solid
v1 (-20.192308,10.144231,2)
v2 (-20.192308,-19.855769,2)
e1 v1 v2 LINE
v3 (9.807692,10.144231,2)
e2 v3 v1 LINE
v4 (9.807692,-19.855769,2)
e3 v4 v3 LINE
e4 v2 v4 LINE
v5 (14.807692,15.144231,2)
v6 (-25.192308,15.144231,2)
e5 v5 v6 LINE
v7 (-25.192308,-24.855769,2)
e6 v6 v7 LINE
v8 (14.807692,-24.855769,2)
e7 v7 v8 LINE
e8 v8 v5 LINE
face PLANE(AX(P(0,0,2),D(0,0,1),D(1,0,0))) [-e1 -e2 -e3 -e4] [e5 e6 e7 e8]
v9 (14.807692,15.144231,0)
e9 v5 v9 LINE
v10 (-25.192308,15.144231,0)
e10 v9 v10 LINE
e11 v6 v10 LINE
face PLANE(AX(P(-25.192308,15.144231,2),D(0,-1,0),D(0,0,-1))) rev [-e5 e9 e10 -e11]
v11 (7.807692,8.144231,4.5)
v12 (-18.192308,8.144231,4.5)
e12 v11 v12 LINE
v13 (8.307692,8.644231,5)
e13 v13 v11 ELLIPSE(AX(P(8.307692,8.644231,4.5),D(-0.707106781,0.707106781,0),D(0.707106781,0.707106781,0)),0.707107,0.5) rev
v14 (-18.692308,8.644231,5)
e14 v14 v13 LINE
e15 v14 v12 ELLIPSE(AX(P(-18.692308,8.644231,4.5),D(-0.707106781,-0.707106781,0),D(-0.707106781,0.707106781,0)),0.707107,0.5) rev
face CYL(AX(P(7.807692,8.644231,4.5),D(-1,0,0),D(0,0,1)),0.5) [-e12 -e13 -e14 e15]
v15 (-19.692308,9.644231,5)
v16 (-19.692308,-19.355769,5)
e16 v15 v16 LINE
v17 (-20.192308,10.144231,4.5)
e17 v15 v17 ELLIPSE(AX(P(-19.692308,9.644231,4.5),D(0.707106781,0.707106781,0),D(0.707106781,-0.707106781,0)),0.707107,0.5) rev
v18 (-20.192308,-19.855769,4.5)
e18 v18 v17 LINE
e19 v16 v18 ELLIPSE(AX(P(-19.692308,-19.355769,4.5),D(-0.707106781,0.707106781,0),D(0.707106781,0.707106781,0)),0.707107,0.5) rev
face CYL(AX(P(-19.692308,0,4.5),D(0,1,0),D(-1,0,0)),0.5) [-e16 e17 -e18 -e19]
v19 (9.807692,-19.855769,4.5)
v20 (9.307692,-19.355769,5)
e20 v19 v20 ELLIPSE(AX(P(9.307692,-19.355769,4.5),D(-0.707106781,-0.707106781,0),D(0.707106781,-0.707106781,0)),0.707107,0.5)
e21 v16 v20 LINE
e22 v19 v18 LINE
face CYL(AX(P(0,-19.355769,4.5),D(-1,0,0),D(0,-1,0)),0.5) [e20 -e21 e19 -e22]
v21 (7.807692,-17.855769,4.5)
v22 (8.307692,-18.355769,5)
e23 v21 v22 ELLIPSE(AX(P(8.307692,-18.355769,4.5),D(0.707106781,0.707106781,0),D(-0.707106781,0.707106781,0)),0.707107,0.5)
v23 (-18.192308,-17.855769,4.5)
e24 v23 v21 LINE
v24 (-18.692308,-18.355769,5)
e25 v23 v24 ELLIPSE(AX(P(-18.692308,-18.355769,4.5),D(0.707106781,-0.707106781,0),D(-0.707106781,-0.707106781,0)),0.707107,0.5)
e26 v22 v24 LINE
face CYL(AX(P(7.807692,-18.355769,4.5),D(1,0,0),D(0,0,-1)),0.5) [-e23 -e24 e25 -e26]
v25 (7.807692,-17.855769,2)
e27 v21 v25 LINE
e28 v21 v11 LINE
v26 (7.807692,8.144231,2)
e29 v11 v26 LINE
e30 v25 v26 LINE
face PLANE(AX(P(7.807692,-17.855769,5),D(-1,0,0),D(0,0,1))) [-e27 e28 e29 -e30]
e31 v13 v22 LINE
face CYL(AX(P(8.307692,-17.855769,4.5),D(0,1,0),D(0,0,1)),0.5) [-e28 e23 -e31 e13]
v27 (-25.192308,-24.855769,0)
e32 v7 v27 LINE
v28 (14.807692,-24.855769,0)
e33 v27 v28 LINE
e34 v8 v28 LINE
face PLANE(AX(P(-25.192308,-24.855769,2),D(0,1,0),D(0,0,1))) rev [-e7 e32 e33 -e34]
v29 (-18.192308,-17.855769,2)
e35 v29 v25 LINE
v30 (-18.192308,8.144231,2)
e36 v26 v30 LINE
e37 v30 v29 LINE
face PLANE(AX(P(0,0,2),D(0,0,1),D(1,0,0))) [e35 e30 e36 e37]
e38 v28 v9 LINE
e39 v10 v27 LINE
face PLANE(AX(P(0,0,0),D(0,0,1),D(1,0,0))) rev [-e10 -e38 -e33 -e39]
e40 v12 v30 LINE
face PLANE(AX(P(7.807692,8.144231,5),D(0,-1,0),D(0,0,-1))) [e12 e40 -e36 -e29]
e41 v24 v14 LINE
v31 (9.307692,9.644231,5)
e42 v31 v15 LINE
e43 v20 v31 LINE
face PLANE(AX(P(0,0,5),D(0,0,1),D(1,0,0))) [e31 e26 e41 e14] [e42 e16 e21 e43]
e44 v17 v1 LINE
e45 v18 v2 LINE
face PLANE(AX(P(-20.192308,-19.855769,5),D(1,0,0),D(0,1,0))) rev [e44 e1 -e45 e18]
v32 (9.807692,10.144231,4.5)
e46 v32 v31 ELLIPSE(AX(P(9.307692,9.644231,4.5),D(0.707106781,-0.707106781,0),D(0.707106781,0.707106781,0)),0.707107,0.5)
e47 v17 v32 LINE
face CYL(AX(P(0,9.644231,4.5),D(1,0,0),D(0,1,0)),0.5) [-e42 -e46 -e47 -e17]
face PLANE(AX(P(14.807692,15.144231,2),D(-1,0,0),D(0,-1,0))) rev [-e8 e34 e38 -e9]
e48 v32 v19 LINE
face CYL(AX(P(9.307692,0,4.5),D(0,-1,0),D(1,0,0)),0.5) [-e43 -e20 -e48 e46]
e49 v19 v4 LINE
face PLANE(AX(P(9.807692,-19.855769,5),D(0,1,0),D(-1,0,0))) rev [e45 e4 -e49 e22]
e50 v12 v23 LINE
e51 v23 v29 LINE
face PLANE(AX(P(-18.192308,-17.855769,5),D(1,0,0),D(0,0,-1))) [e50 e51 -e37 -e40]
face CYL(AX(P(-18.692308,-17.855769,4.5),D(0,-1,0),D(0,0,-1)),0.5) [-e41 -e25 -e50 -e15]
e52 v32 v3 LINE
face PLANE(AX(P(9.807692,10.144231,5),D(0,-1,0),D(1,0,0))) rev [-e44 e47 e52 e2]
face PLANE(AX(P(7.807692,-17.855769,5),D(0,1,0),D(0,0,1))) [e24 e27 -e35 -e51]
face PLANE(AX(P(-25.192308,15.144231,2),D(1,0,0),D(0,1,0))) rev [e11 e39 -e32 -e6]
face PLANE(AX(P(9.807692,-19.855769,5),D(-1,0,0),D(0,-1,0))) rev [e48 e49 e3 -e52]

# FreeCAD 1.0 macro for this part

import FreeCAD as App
import Part
import Sketcher
from FreeCAD import Vector
Q = App.Units.Quantity


def edges_at(feature, points):
    """Names of the edges that pass closest to the given points."""
    edges = feature.Shape.Edges
    near = lambda p: min(range(len(edges)), key=lambda i: edges[i].distToShape(Part.Vertex(*p))[0])
    return sorted({f"Edge{near(p) + 1}" for p in points})

doc = App.newDocument("Part")
body = doc.addObject("PartDesign::Body", "Body")

# Sketch on XY plane
sketch1 = doc.addObject("Sketcher::SketchObject", "Sketch")
body.addObject(sketch1)
sketch1.AttachmentSupport = (doc.XY_Plane, [""])
sketch1.MapMode = "FlatFace"
sketch1.addGeometry(Part.LineSegment(Vector(-25, 15, 0), Vector(-25, -25, 0)), False)
sketch1.addGeometry(Part.LineSegment(Vector(-25, -25, 0), Vector(15, -25, 0)), False)
sketch1.addGeometry(Part.LineSegment(Vector(15, -25, 0), Vector(15, 15, 0)), False)
sketch1.addGeometry(Part.LineSegment(Vector(15, 15, 0), Vector(-25, 15, 0)), False)
sketch1.addConstraint(Sketcher.Constraint("Coincident", 0, 2, 1, 1))
sketch1.addConstraint(Sketcher.Constraint("Coincident", 1, 2, 2, 1))
sketch1.addConstraint(Sketcher.Constraint("Coincident", 2, 2, 3, 1))
sketch1.addConstraint(Sketcher.Constraint("Coincident", 3, 2, 0, 1))
sketch1.addConstraint(Sketcher.Constraint("Vertical", 0))
sketch1.addConstraint(Sketcher.Constraint("Horizontal", 1))
sketch1.addConstraint(Sketcher.Constraint("Vertical", 2))
sketch1.addConstraint(Sketcher.Constraint("Horizontal", 3))
sketch1.addConstraint(Sketcher.Constraint("Equal", 3, 0))
sketch1.addConstraint(Sketcher.Constraint("DistanceX", 1, 1, 1, 2, Q("40 mm")))
sketch1.addConstraint(Sketcher.Constraint("DistanceY", 0, 2, -1, 1, Q("24.855769 mm")))
sketch1.addConstraint(Sketcher.Constraint("DistanceX", 0, 2, -1, 1, Q("25.192308 mm")))
pad1 = doc.addObject("PartDesign::Pad", "Pad")
body.addObject(pad1)
pad1.Profile = sketch1
pad1.Length = 2

# Sketch on XY plane
sketch2 = doc.addObject("Sketcher::SketchObject", "Sketch001")
body.addObject(sketch2)
sketch2.AttachmentSupport = (doc.XY_Plane, [""])
sketch2.MapMode = "FlatFace"
sketch2.AttachmentOffset = App.Placement(Vector(0, 0, 2), App.Rotation())
sketch2.addGeometry(Part.LineSegment(Vector(-20, 10, 0), Vector(-20, -20, 0)), False)
sketch2.addGeometry(Part.LineSegment(Vector(-20, -20, 0), Vector(10, -20, 0)), False)
sketch2.addGeometry(Part.LineSegment(Vector(10, -20, 0), Vector(10, 10, 0)), False)
sketch2.addGeometry(Part.LineSegment(Vector(10, 10, 0), Vector(-20, 10, 0)), False)
sketch2.addGeometry(Part.LineSegment(Vector(8, -18, 0), Vector(-18, -18, 0)), False)
sketch2.addGeometry(Part.LineSegment(Vector(-18, -18, 0), Vector(-18, 8, 0)), False)
sketch2.addGeometry(Part.LineSegment(Vector(-18, 8, 0), Vector(8, 8, 0)), False)
sketch2.addGeometry(Part.LineSegment(Vector(8, 8, 0), Vector(8, -18, 0)), False)
sketch2.addConstraint(Sketcher.Constraint("Coincident", 0, 2, 1, 1))
sketch2.addConstraint(Sketcher.Constraint("Coincident", 1, 2, 2, 1))
sketch2.addConstraint(Sketcher.Constraint("Coincident", 2, 2, 3, 1))
sketch2.addConstraint(Sketcher.Constraint("Coincident", 3, 2, 0, 1))
sketch2.addConstraint(Sketcher.Constraint("Coincident", 4, 2, 5, 1))
sketch2.addConstraint(Sketcher.Constraint("Coincident", 5, 2, 6, 1))
sketch2.addConstraint(Sketcher.Constraint("Coincident", 6, 2, 7, 1))
sketch2.addConstraint(Sketcher.Constraint("Coincident", 7, 2, 4, 1))
sketch2.addConstraint(Sketcher.Constraint("Vertical", 0))
sketch2.addConstraint(Sketcher.Constraint("Horizontal", 1))
sketch2.addConstraint(Sketcher.Constraint("Vertical", 2))
sketch2.addConstraint(Sketcher.Constraint("Horizontal", 3))
sketch2.addConstraint(Sketcher.Constraint("Horizontal", 4))
sketch2.addConstraint(Sketcher.Constraint("Vertical", 5))
sketch2.addConstraint(Sketcher.Constraint("Horizontal", 6))
sketch2.addConstraint(Sketcher.Constraint("Vertical", 7))
sketch2.addConstraint(Sketcher.Constraint("Equal", 3, 0))
sketch2.addConstraint(Sketcher.Constraint("Equal", 6, 5))
sketch2.addConstraint(Sketcher.Constraint("DistanceX", 1, 1, 1, 2, Q("30 mm")))
sketch2.addConstraint(Sketcher.Constraint("DistanceX", 4, 2, 4, 1, Q("26 mm")))
sketch2.addConstraint(Sketcher.Constraint("DistanceX", 0, 2, 4, 2, Q("2 mm")))
sketch2.addConstraint(Sketcher.Constraint("DistanceY", 0, 2, 4, 2, Q("2 mm")))
sketch2.addConstraint(Sketcher.Constraint("DistanceY", 0, 2, -1, 1, Q("19.855769 mm")))
sketch2.addConstraint(Sketcher.Constraint("DistanceX", 0, 2, -1, 1, Q("20.192308 mm")))
pad2 = doc.addObject("PartDesign::Pad", "Pad001")
body.addObject(pad2)
pad2.Profile = sketch2
pad2.Length = 3
doc.recompute()

fillet = doc.addObject("PartDesign::Fillet", "Fillet")
body.addObject(fillet)
fillet.Base = (pad2, edges_at(pad2, [
    (-20.192, -4.856, 5),
    (-5.192, -19.856, 5),
    (9.808, -4.856, 5),
    (-5.192, 10.144, 5),
    (-18.192, -4.856, 5),
    (-5.192, -17.856, 5),
    (7.808, -4.856, 5),
    (-5.192, 8.144, 5),
]))
fillet.Radius = 0.5

doc.recompute()
